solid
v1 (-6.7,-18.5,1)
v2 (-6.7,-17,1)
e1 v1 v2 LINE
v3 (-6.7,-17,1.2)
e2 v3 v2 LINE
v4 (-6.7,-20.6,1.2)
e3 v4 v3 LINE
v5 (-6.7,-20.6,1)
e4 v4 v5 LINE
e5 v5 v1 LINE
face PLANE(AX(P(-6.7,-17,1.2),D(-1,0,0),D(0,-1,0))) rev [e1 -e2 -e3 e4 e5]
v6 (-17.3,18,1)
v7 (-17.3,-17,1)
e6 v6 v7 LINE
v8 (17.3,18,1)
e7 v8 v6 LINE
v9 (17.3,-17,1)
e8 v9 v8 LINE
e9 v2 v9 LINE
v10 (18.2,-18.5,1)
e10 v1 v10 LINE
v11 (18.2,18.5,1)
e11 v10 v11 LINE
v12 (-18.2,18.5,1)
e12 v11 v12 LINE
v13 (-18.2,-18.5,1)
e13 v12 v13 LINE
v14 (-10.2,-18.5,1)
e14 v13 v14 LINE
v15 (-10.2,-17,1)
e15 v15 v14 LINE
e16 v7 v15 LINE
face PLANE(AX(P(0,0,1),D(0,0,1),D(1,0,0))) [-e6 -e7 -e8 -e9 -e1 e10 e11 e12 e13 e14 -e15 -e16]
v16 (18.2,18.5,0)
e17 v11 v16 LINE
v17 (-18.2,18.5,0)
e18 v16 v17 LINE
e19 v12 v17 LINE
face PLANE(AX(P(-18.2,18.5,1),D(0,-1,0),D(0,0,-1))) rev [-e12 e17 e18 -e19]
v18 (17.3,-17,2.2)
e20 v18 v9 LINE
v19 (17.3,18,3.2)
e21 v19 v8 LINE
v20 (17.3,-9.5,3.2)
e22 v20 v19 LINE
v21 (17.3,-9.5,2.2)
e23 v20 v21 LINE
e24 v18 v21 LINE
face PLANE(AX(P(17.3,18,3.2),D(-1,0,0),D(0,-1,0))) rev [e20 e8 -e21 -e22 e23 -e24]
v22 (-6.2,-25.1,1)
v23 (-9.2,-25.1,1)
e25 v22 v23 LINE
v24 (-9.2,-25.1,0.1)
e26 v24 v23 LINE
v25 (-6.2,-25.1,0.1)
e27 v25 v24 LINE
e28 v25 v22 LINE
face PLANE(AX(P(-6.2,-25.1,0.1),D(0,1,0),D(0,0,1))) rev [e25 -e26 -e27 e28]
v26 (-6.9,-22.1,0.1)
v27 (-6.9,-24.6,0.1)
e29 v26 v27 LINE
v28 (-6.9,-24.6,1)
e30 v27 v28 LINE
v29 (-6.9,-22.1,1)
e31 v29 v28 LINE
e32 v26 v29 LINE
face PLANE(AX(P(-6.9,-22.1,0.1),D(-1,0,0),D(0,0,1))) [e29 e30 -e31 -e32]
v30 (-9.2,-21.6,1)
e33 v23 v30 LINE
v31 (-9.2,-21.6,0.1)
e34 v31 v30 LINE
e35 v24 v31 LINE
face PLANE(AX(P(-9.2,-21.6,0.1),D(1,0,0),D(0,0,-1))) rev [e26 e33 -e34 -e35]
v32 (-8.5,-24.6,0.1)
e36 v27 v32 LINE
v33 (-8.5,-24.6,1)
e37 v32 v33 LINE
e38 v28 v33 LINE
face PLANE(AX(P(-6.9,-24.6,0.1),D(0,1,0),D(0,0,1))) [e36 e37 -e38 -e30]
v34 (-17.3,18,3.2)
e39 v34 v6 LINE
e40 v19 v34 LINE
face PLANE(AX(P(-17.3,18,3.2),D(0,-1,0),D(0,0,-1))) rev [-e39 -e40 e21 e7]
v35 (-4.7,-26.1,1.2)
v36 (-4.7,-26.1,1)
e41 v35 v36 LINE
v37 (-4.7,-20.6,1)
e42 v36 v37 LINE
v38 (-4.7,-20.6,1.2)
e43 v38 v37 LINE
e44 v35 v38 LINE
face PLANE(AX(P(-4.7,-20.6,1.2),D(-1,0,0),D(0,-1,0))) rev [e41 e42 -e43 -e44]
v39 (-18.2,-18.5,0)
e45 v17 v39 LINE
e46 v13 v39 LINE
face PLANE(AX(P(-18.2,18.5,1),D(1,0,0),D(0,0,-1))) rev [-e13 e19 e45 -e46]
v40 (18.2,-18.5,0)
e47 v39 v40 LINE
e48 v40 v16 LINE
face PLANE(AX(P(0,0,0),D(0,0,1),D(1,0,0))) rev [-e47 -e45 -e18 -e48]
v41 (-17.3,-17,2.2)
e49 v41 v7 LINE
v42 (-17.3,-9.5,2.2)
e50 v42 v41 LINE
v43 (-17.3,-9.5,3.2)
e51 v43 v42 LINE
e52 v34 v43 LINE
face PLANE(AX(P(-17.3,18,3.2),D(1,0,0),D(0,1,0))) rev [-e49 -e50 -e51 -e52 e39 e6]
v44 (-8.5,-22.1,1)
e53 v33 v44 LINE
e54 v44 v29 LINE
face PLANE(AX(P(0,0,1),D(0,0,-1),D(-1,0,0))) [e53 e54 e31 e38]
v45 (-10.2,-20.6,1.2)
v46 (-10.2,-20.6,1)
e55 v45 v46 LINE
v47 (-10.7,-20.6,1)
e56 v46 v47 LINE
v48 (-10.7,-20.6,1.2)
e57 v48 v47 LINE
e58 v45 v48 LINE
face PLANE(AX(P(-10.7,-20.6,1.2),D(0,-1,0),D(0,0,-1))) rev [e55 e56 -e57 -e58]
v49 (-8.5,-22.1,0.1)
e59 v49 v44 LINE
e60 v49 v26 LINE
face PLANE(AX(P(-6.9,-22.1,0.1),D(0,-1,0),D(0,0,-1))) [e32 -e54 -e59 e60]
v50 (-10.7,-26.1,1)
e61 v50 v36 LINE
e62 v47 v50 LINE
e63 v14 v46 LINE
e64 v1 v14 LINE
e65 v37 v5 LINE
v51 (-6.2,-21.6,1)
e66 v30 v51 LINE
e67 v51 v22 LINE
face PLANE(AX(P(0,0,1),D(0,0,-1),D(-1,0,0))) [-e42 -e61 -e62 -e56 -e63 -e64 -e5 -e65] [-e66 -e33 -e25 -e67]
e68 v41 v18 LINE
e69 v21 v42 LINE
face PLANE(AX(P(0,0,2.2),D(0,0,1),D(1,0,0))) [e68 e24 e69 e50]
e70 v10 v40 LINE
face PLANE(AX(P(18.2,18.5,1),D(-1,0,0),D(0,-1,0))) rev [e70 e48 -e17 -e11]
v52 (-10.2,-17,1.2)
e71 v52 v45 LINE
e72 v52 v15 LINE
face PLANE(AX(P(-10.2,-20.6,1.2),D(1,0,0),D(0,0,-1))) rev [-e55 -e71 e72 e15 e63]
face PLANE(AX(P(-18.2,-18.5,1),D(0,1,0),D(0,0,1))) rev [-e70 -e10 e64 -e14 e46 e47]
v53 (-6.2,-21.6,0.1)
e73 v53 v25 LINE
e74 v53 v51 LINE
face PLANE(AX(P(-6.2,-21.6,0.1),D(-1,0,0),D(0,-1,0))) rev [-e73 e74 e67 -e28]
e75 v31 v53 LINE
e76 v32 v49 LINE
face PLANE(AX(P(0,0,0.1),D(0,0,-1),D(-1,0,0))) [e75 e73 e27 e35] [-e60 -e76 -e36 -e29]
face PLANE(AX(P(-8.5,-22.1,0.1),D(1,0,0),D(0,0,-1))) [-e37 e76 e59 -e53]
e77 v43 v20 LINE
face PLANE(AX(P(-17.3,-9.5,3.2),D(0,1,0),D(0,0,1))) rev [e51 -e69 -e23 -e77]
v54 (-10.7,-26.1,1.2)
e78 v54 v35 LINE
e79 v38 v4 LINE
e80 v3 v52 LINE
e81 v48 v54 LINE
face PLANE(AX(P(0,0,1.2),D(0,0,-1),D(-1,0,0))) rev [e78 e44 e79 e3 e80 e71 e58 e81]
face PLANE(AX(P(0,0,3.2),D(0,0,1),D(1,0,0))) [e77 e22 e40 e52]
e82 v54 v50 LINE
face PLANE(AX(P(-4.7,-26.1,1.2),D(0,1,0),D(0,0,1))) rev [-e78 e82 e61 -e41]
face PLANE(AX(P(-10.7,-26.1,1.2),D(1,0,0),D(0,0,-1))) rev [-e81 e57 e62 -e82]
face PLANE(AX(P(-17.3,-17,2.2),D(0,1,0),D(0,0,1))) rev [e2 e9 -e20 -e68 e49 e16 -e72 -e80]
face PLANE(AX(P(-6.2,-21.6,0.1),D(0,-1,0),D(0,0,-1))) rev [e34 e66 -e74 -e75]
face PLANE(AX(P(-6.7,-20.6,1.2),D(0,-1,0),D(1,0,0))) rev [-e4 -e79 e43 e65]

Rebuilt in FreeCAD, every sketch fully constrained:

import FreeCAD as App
import Part
import Sketcher

V = App.Vector


def add_polygon(sketch, points):
    """Adds a closed chain of lines whose ends are joined by coincident constraints."""
    first, n = sketch.GeometryCount, len(points)
    for a, b in zip(points, points[1:] + points[:1]):
        sketch.addGeometry(Part.LineSegment(App.Vector(*a, 0), App.Vector(*b, 0)), False)
    for i in range(n):
        sketch.addConstraint(Sketcher.Constraint("Coincident", first + i, 2, first + (i + 1) % n, 1))

doc = App.newDocument("Part")
body = doc.addObject("PartDesign::Body", "Body")

# Sketch on XY plane
sketch1 = doc.addObject("Sketcher::SketchObject", "Sketch")
body.addObject(sketch1)
sketch1.AttachmentSupport = (doc.XY_Plane, [""])
sketch1.MapMode = "FlatFace"
add_polygon(sketch1, [(-18, 18), (-18, -18), (18, -18), (18, 18)])  # lines 0-3
sketch1.addConstraint(Sketcher.Constraint("Vertical", 0))
sketch1.addConstraint(Sketcher.Constraint("Horizontal", 1))
sketch1.addConstraint(Sketcher.Constraint("Vertical", 2))
sketch1.addConstraint(Sketcher.Constraint("Horizontal", 3))
sketch1.addConstraint(Sketcher.Constraint("Symmetric", 0, 2, 2, 2, -1, 1))
sketch1.addConstraint(Sketcher.Constraint("DistanceY", 0, 2, 0, 1, 37.0))
sketch1.addConstraint(Sketcher.Constraint("DistanceX", 1, 1, 1, 2, 36.4))
pad1 = doc.addObject("PartDesign::Pad", "Pad")
body.addObject(pad1)
pad1.Profile = sketch1
pad1.Length = 1

# Sketch on XY plane
sketch2 = doc.addObject("Sketcher::SketchObject", "Sketch001")
body.addObject(sketch2)
sketch2.AttachmentSupport = (doc.XY_Plane, [""])
sketch2.MapMode = "FlatFace"
sketch2.AttachmentOffset = App.Placement(V(0, 0, 1), App.Rotation())
add_polygon(sketch2, [(-17, 18), (-17, -10), (17, -10), (17, 18)])  # lines 0-3
sketch2.addConstraint(Sketcher.Constraint("Vertical", 0))
sketch2.addConstraint(Sketcher.Constraint("Horizontal", 1))
sketch2.addConstraint(Sketcher.Constraint("Vertical", 2))
sketch2.addConstraint(Sketcher.Constraint("Horizontal", 3))
sketch2.addConstraint(Sketcher.Constraint("DistanceX", 1, 1, 1, 2, 34.6))
sketch2.addConstraint(Sketcher.Constraint("DistanceY", 0, 2, 0, 1, 27.5))
sketch2.addConstraint(Sketcher.Constraint("DistanceY", -1, 1, 2, 2, 18.0))
sketch2.addConstraint(Sketcher.Constraint("DistanceX", 0, 2, -1, 1, 17.3))
pad2 = doc.addObject("PartDesign::Pad", "Pad001")
body.addObject(pad2)
pad2.Profile = sketch2
pad2.Length = 2.2

# Sketch on XY plane
sketch3 = doc.addObject("Sketcher::SketchObject", "Sketch002")
body.addObject(sketch3)
sketch3.AttachmentSupport = (doc.XY_Plane, [""])
sketch3.MapMode = "FlatFace"
sketch3.AttachmentOffset = App.Placement(V(0, 0, 1), App.Rotation())
add_polygon(sketch3, [(-17, -10), (-17, -17), (17, -17), (17, -10)])  # lines 0-3
sketch3.addConstraint(Sketcher.Constraint("Vertical", 0))
sketch3.addConstraint(Sketcher.Constraint("Horizontal", 1))
sketch3.addConstraint(Sketcher.Constraint("Vertical", 2))
sketch3.addConstraint(Sketcher.Constraint("Horizontal", 3))
sketch3.addConstraint(Sketcher.Constraint("DistanceX", 1, 1, 1, 2, 34.6))
sketch3.addConstraint(Sketcher.Constraint("DistanceY", 0, 2, 0, 1, 7.5))
sketch3.addConstraint(Sketcher.Constraint("DistanceY", 0, 2, -1, 1, 17.0))
sketch3.addConstraint(Sketcher.Constraint("DistanceX", 0, 2, -1, 1, 17.3))
pad3 = doc.addObject("PartDesign::Pad", "Pad002")
body.addObject(pad3)
pad3.Profile = sketch3
pad3.Length = 1.2

# Sketch on XY plane
sketch4 = doc.addObject("Sketcher::SketchObject", "Sketch003")
body.addObject(sketch4)
sketch4.AttachmentSupport = (doc.XY_Plane, [""])
sketch4.MapMode = "FlatFace"
sketch4.AttachmentOffset = App.Placement(V(0, 0, 1), App.Rotation())
add_polygon(sketch4, [(-6.7, -17), (-10.2, -17), (-10.2, -20.6), (-10.7, -20.6), (-10.7, -26.1), (-4.7, -26.1), (-4.7, -20.6), (-6.7, -20.6)])  # lines 0-7
sketch4.addConstraint(Sketcher.Constraint("Horizontal", 0))
sketch4.addConstraint(Sketcher.Constraint("Vertical", 1))
sketch4.addConstraint(Sketcher.Constraint("Horizontal", 2))
sketch4.addConstraint(Sketcher.Constraint("Vertical", 3))
sketch4.addConstraint(Sketcher.Constraint("Horizontal", 4))
sketch4.addConstraint(Sketcher.Constraint("Vertical", 5))
sketch4.addConstraint(Sketcher.Constraint("Horizontal", 6))
sketch4.addConstraint(Sketcher.Constraint("Vertical", 7))
sketch4.addConstraint(Sketcher.Constraint("Horizontal", 2, 2, 5, 2))
sketch4.addConstraint(Sketcher.Constraint("DistanceX", 4, 1, 4, 2, 6.0))
sketch4.addConstraint(Sketcher.Constraint("DistanceX", 6, 2, 6, 1, 2.0))
sketch4.addConstraint(Sketcher.Constraint("DistanceX", 0, 2, 0, 1, 3.5))
sketch4.addConstraint(Sketcher.Constraint("DistanceY", 1, 2, 1, 1, 3.6))
sketch4.addConstraint(Sketcher.Constraint("DistanceY", 3, 2, 3, 1, 5.5))
sketch4.addConstraint(Sketcher.Constraint("DistanceY", 0, 2, -1, 1, 17.0))
sketch4.addConstraint(Sketcher.Constraint("DistanceX", 0, 2, -1, 1, 10.2))
pad4 = doc.addObject("PartDesign::Pad", "Pad003")
body.addObject(pad4)
pad4.Profile = sketch4
pad4.Length = 0.2

# Sketch on XY plane
sketch5 = doc.addObject("Sketcher::SketchObject", "Sketch004")
body.addObject(sketch5)
sketch5.AttachmentSupport = (doc.XY_Plane, [""])
sketch5.MapMode = "FlatFace"
sketch5.AttachmentOffset = App.Placement(V(0, 0, 1), App.Rotation())
add_polygon(sketch5, [(-6.2, -21.6), (-6.2, -25.1), (-9.2, -25.1), (-9.2, -21.6)])  # lines 0-3
add_polygon(sketch5, [(-8.5, -24.6), (-6.9, -24.6), (-6.9, -22.1), (-8.5, -22.1)])  # lines 4-7
sketch5.addConstraint(Sketcher.Constraint("Vertical", 0))
sketch5.addConstraint(Sketcher.Constraint("Horizontal", 1))
sketch5.addConstraint(Sketcher.Constraint("Vertical", 2))
sketch5.addConstraint(Sketcher.Constraint("Horizontal", 3))
sketch5.addConstraint(Sketcher.Constraint("Horizontal", 4))
sketch5.addConstraint(Sketcher.Constraint("Vertical", 5))
sketch5.addConstraint(Sketcher.Constraint("Horizontal", 6))
sketch5.addConstraint(Sketcher.Constraint("Vertical", 7))
sketch5.addConstraint(Sketcher.Constraint("DistanceX", 1, 2, 1, 1, 3.0))
sketch5.addConstraint(Sketcher.Constraint("DistanceX", 4, 1, 4, 2, 1.6))
sketch5.addConstraint(Sketcher.Constraint("DistanceY", 0, 2, 0, 1, 3.5))
sketch5.addConstraint(Sketcher.Constraint("DistanceY", 5, 1, 5, 2, 2.5))
sketch5.addConstraint(Sketcher.Constraint("DistanceY", 4, 2, 3, 2, 3.0))
sketch5.addConstraint(Sketcher.Constraint("DistanceX", 0, 2, -1, 1, 6.2))
sketch5.addConstraint(Sketcher.Constraint("DistanceY", 0, 2, -1, 1, 25.1))
sketch5.addConstraint(Sketcher.Constraint("DistanceX", 4, 2, -1, 1, 6.9))
pad5 = doc.addObject("PartDesign::Pad", "Pad004")
body.addObject(pad5)
pad5.Profile = sketch5
pad5.Length = 0.9
pad5.Reversed = True

doc.recompute()
